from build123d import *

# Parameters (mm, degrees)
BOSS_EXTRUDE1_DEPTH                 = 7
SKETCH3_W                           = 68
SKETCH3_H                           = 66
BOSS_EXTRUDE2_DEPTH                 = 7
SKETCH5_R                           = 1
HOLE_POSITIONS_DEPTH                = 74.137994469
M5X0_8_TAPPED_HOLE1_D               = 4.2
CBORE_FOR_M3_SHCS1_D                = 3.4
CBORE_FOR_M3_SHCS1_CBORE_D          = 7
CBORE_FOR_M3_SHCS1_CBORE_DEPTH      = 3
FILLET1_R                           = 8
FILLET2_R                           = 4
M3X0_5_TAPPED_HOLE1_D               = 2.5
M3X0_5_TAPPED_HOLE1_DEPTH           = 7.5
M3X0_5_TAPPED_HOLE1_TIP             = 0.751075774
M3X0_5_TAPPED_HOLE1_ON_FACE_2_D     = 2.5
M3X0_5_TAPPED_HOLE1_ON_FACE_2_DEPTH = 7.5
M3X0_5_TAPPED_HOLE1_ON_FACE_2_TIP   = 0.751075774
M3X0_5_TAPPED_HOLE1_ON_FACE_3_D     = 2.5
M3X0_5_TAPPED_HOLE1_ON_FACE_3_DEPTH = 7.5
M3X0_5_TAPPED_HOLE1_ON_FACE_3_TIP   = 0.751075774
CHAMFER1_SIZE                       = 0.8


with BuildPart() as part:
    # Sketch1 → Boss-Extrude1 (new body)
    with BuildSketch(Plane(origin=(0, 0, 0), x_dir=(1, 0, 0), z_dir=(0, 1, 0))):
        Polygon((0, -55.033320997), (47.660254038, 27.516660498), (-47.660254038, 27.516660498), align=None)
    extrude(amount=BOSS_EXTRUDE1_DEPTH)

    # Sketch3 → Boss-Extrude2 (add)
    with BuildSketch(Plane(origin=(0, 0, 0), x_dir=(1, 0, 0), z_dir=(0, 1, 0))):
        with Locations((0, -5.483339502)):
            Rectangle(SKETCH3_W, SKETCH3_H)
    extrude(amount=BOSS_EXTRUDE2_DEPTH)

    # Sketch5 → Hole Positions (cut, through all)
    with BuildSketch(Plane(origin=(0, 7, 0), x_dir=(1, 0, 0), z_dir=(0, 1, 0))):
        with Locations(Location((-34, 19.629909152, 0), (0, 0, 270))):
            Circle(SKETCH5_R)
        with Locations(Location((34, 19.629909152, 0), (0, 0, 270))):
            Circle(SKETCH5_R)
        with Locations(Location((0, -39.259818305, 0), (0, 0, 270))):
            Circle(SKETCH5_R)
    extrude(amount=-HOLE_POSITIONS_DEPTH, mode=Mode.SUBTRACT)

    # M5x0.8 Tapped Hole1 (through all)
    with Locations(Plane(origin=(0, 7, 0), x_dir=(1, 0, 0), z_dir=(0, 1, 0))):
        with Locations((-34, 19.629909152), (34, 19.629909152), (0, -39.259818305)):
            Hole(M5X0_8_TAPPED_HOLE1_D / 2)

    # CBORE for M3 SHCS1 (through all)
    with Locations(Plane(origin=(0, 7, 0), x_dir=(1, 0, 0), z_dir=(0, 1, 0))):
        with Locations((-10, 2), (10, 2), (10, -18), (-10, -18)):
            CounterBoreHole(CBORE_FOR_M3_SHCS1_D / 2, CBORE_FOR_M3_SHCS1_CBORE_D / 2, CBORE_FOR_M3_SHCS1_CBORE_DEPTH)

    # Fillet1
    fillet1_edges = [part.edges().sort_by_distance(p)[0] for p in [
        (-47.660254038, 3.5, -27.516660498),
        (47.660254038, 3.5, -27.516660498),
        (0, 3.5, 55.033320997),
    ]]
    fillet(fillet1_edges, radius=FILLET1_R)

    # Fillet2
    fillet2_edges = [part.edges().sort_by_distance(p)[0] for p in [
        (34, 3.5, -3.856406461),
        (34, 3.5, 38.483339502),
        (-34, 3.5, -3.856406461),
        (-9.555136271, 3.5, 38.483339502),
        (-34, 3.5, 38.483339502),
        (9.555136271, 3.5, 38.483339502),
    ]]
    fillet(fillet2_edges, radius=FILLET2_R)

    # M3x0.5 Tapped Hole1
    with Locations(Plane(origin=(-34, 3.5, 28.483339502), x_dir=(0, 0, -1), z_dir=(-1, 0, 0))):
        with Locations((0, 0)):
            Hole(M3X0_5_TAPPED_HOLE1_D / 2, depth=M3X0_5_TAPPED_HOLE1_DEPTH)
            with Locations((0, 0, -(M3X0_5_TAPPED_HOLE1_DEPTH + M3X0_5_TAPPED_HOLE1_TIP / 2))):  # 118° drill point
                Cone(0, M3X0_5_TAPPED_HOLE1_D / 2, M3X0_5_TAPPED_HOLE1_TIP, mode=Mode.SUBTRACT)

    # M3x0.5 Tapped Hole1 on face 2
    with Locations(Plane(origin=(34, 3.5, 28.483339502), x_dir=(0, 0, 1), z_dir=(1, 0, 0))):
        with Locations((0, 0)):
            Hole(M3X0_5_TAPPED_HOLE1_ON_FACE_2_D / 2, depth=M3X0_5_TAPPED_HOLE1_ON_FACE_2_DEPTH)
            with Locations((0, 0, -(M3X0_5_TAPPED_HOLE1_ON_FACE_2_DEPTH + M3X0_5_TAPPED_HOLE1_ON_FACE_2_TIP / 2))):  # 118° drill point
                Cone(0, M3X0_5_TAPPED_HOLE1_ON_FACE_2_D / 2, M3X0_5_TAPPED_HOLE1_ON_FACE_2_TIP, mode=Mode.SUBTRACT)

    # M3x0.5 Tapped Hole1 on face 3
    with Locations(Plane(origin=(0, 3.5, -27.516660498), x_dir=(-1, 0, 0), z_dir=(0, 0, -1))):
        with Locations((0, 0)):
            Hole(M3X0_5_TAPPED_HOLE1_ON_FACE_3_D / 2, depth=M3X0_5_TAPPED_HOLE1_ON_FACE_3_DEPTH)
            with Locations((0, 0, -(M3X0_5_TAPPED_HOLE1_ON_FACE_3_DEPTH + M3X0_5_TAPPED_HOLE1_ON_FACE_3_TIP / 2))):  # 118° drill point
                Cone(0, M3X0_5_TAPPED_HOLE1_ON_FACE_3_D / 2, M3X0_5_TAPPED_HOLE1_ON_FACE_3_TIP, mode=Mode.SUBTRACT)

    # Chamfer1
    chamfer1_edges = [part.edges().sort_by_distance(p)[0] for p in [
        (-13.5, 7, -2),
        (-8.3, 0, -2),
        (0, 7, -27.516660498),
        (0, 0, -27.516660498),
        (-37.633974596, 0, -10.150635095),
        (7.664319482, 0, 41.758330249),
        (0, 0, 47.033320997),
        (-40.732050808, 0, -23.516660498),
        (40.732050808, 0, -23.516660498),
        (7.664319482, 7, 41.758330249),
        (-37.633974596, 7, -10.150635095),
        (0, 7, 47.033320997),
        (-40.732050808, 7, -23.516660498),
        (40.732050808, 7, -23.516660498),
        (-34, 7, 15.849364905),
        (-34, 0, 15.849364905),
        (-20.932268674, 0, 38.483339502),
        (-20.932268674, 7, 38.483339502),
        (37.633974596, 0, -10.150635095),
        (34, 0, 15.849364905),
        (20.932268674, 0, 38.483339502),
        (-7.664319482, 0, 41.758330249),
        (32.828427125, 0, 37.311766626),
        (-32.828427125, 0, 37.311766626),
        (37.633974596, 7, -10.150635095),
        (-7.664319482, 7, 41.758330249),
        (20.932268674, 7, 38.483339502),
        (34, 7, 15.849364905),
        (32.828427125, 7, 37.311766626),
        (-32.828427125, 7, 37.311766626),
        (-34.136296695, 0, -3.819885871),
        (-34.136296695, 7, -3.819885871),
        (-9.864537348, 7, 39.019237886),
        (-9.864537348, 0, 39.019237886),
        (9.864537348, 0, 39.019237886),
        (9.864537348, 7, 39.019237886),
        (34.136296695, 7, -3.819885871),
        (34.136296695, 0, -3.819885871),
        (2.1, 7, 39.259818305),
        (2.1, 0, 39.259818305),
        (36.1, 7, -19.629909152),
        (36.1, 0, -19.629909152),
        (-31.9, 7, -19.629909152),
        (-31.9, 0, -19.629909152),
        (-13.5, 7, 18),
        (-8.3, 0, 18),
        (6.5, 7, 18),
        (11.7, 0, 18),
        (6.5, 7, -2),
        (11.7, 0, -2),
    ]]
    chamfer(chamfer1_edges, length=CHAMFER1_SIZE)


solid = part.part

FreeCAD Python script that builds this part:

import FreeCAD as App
import Part
import Sketcher
from FreeCAD import Vector
Q = App.Units.Quantity


def edges_at(feature, points):
    """Names of the edges that pass closest to the given points."""
    edges = feature.Shape.Edges
    near = lambda p: min(range(len(edges)), key=lambda i: edges[i].distToShape(Part.Vertex(*p))[0])
    return sorted({f"Edge{near(p) + 1}" for p in points})


def add_polygon(sketch, points):
    """Adds a closed chain of lines whose ends are joined by coincident constraints."""
    first, n = sketch.GeometryCount, len(points)
    for a, b in zip(points, points[1:] + points[:1]):
        sketch.addGeometry(Part.LineSegment(App.Vector(*a, 0), App.Vector(*b, 0)), False)
    for i in range(n):
        sketch.addConstraint(Sketcher.Constraint("Coincident", first + i, 2, first + (i + 1) % n, 1))

doc = App.newDocument("Part")
body = doc.addObject("PartDesign::Body", "Body")

sketch1 = body.newObject("Sketcher::SketchObject", "Sketch")
sketch1.AttachmentSupport = (doc.getObject("XZ_Plane"), [""])
sketch1.MapMode = "FlatFace"
add_polygon(sketch1, [(0, 55), (48, -28), (-48, -28)])
sketch1.addConstraint(Sketcher.Constraint("Horizontal", 1))
sketch1.addConstraint(Sketcher.Constraint("PointOnObject", 2, 2, -2))
sketch1.addConstraint(Sketcher.Constraint("Equal", 0, 2))
sketch1.addConstraint(Sketcher.Constraint("Angle", 0, Q("-60 deg")))
sketch1.addConstraint(Sketcher.Constraint("DistanceX", 1, 2, 1, 1, Q("95.320508 mm")))
sketch1.addConstraint(Sketcher.Constraint("DistanceY", 0, 2, -1, 1, Q("27.51666 mm")))
pad1 = body.newObject("PartDesign::Pad", "Pad")
pad1.Profile = sketch1
pad1.Length = 7
pad1.Reversed = True

sketch2 = body.newObject("Sketcher::SketchObject", "Sketch001")
sketch2.AttachmentSupport = (doc.getObject("XZ_Plane"), [""])
sketch2.MapMode = "FlatFace"
add_polygon(sketch2, [(-34, -28), (-34, 38), (34, 38), (34, -28)])
sketch2.addConstraint(Sketcher.Constraint("Vertical", 0))
sketch2.addConstraint(Sketcher.Constraint("Horizontal", 1))
sketch2.addConstraint(Sketcher.Constraint("Vertical", 2))
sketch2.addConstraint(Sketcher.Constraint("Horizontal", 3))
sketch2.addConstraint(Sketcher.Constraint("DistanceX", 1, 1, 1, 2, Q("68 mm")))
sketch2.addConstraint(Sketcher.Constraint("DistanceY", 0, 1, 0, 2, Q("66 mm")))
sketch2.addConstraint(Sketcher.Constraint("DistanceX", 0, 2, -1, 1, Q("34 mm")))
sketch2.addConstraint(Sketcher.Constraint("DistanceY", -1, 1, 0, 2, Q("38.48334 mm")))
pad2 = body.newObject("PartDesign::Pad", "Pad001")
pad2.Profile = sketch2
pad2.Length = 7
pad2.Reversed = True

sketch3 = body.newObject("Sketcher::SketchObject", "Sketch002")
sketch3.AttachmentSupport = (doc.getObject("XZ_Plane"), [""])
sketch3.MapMode = "FlatFace"
sketch3.AttachmentOffset = App.Placement(Vector(0, 0, -7), App.Rotation())
sketch3.addGeometry(Part.Circle(Vector(-34, -19.6, 0), Vector(0, 0, 1), 1), False)
sketch3.addGeometry(Part.Circle(Vector(34, -19.6, 0), Vector(0, 0, 1), 1), False)
sketch3.addGeometry(Part.Circle(Vector(0, 39.3, 0), Vector(0, 0, 1), 1), False)
sketch3.addConstraint(Sketcher.Constraint("Equal", 0, 1))
sketch3.addConstraint(Sketcher.Constraint("Equal", 1, 2))
sketch3.addConstraint(Sketcher.Constraint("Symmetric", 0, 3, 1, 3, -2))
sketch3.addConstraint(Sketcher.Constraint("PointOnObject", 2, 3, -2))
sketch3.addConstraint(Sketcher.Constraint("Diameter", 0, Q("2 mm")))
sketch3.addConstraint(Sketcher.Constraint("DistanceX", 0, 3, -1, 1, Q("34 mm")))
sketch3.addConstraint(Sketcher.Constraint("DistanceY", 0, 3, -1, 1, Q("19.629909 mm")))
sketch3.addConstraint(Sketcher.Constraint("DistanceY", -1, 1, 2, 3, Q("39.259818 mm")))
pocket1 = body.newObject("PartDesign::Pocket", "Pocket")
pocket1.Profile = sketch3
pocket1.Type = "ThroughAll"
pocket1.Reversed = True

sketch4 = body.newObject("Sketcher::SketchObject", "Sketch003")
sketch4.AttachmentSupport = (doc.getObject("XZ_Plane"), [""])
sketch4.MapMode = "FlatFace"
sketch4.AttachmentOffset = App.Placement(Vector(0, 0, -7), App.Rotation())
sketch4.addGeometry(Part.Circle(Vector(-34, -19.6, 0), Vector(0, 0, 1), 2.1), False)
sketch4.addGeometry(Part.Circle(Vector(34, -19.6, 0), Vector(0, 0, 1), 2.1), False)
sketch4.addGeometry(Part.Circle(Vector(0, 39.3, 0), Vector(0, 0, 1), 2.1), False)
sketch4.addConstraint(Sketcher.Constraint("Equal", 0, 1))
sketch4.addConstraint(Sketcher.Constraint("Equal", 1, 2))
sketch4.addConstraint(Sketcher.Constraint("Symmetric", 0, 3, 1, 3, -2))
sketch4.addConstraint(Sketcher.Constraint("PointOnObject", 2, 3, -2))
sketch4.addConstraint(Sketcher.Constraint("Diameter", 0, Q("4.2 mm")))
sketch4.addConstraint(Sketcher.Constraint("DistanceX", 0, 3, -1, 1, Q("34 mm")))
sketch4.addConstraint(Sketcher.Constraint("DistanceY", 0, 3, -1, 1, Q("19.629909 mm")))
sketch4.addConstraint(Sketcher.Constraint("DistanceY", -1, 1, 2, 3, Q("39.259818 mm")))
doc.recompute()
hole = body.newObject("PartDesign::Hole", "Hole")
hole.Profile = sketch4
hole.ThreadType = "None"
hole.Diameter = 4.2
hole.DepthType = "ThroughAll"
hole.Reversed = True

sketch5 = body.newObject("Sketcher::SketchObject", "Sketch004")
sketch5.AttachmentSupport = (doc.getObject("XZ_Plane"), [""])
sketch5.MapMode = "FlatFace"
sketch5.AttachmentOffset = App.Placement(Vector(0, 0, -7), App.Rotation())
sketch5.addGeometry(Part.Circle(Vector(-10, -2, 0), Vector(0, 0, 1), 1.7), False)
sketch5.addGeometry(Part.Circle(Vector(10, -2, 0), Vector(0, 0, 1), 1.7), False)
sketch5.addGeometry(Part.Circle(Vector(10, 18, 0), Vector(0, 0, 1), 1.7), False)
sketch5.addGeometry(Part.Circle(Vector(-10, 18, 0), Vector(0, 0, 1), 1.7), False)
sketch5.addConstraint(Sketcher.Constraint("Equal", 0, 1))
sketch5.addConstraint(Sketcher.Constraint("Equal", 1, 2))
sketch5.addConstraint(Sketcher.Constraint("Equal", 2, 3))
sketch5.addConstraint(Sketcher.Constraint("Symmetric", 0, 3, 1, 3, -2))
sketch5.addConstraint(Sketcher.Constraint("Symmetric", 2, 3, 3, 3, -2))
sketch5.addConstraint(Sketcher.Constraint("Vertical", 1, 3, 2, 3))
sketch5.addConstraint(Sketcher.Constraint("Diameter", 0, Q("3.4 mm")))
sketch5.addConstraint(Sketcher.Constraint("DistanceX", 0, 3, -1, 1, Q("10 mm")))
sketch5.addConstraint(Sketcher.Constraint("DistanceY", 0, 3, -1, 1, Q("2 mm")))
sketch5.addConstraint(Sketcher.Constraint("DistanceY", -1, 1, 2, 3, Q("18 mm")))
doc.recompute()
hole2 = body.newObject("PartDesign::Hole", "Hole001")
hole2.Profile = sketch5
hole2.ThreadType = "None"
hole2.Diameter = 3.4
hole2.DepthType = "ThroughAll"
hole2.HoleCutType = "Counterbore"
hole2.HoleCutDiameter = 7
hole2.HoleCutDepth = 3
hole2.Reversed = True
doc.recompute()

fillet = body.newObject("PartDesign::Fillet", "Fillet")
fillet.Base = (hole2, edges_at(hole2, [(-47.66, 3.5, -27.517), (47.66, 3.5, -27.517), (0, 3.5, 55.033)]))
fillet.Radius = 8
doc.recompute()

fillet2 = body.newObject("PartDesign::Fillet", "Fillet001")
fillet2.Base = (fillet, edges_at(fillet, [
    (34, 3.5, -3.856),
    (34, 3.5, 38.483),
    (-34, 3.5, -3.856),
    (-9.555, 3.5, 38.483),
    (-34, 3.5, 38.483),
    (9.555, 3.5, 38.483),
]))
fillet2.Radius = 4

sketch6 = body.newObject("Sketcher::SketchObject", "Sketch005")
sketch6.AttachmentSupport = (doc.getObject("YZ_Plane"), [""])
sketch6.MapMode = "FlatFace"
sketch6.AttachmentOffset = App.Placement(Vector(0, 0, -34), App.Rotation())
sketch6.addGeometry(Part.Circle(Vector(3.5, 28.5, 0), Vector(0, 0, 1), 1.2), False)
sketch6.addConstraint(Sketcher.Constraint("Diameter", 0, Q("2.5 mm")))
sketch6.addConstraint(Sketcher.Constraint("DistanceX", -1, 1, 0, 3, Q("3.5 mm")))
sketch6.addConstraint(Sketcher.Constraint("DistanceY", -1, 1, 0, 3, Q("28.48334 mm")))
doc.recompute()
hole3 = body.newObject("PartDesign::Hole", "Hole002")
hole3.Profile = sketch6
hole3.ThreadType = "None"
hole3.Diameter = 2.5
hole3.DepthType = "Dimension"
hole3.Depth = 7.5
hole3.DrillPoint = "Angled"
hole3.DrillPointAngle = 118
hole3.Reversed = True

sketch7 = body.newObject("Sketcher::SketchObject", "Sketch006")
sketch7.AttachmentSupport = (doc.getObject("YZ_Plane"), [""])
sketch7.MapMode = "FlatFace"
sketch7.AttachmentOffset = App.Placement(Vector(0, 0, 34), App.Rotation())
sketch7.addGeometry(Part.Circle(Vector(3.5, 28.5, 0), Vector(0, 0, 1), 1.2), False)
sketch7.addConstraint(Sketcher.Constraint("Diameter", 0, Q("2.5 mm")))
sketch7.addConstraint(Sketcher.Constraint("DistanceX", -1, 1, 0, 3, Q("3.5 mm")))
sketch7.addConstraint(Sketcher.Constraint("DistanceY", -1, 1, 0, 3, Q("28.48334 mm")))
doc.recompute()
hole4 = body.newObject("PartDesign::Hole", "Hole003")
hole4.Profile = sketch7
hole4.ThreadType = "None"
hole4.Diameter = 2.5
hole4.DepthType = "Dimension"
hole4.Depth = 7.5
hole4.DrillPoint = "Angled"
hole4.DrillPointAngle = 118

sketch8 = body.newObject("Sketcher::SketchObject", "Sketch007")
sketch8.AttachmentSupport = (doc.getObject("XY_Plane"), [""])
sketch8.MapMode = "FlatFace"
sketch8.AttachmentOffset = App.Placement(Vector(0, 0, -27.51666), App.Rotation())
sketch8.addGeometry(Part.Circle(Vector(0, 3.5, 0), Vector(0, 0, 1), 1.2), False)
sketch8.addConstraint(Sketcher.Constraint("PointOnObject", 0, 3, -2))
sketch8.addConstraint(Sketcher.Constraint("Diameter", 0, Q("2.5 mm")))
sketch8.addConstraint(Sketcher.Constraint("DistanceY", -1, 1, 0, 3, Q("3.5 mm")))
doc.recompute()
hole5 = body.newObject("PartDesign::Hole", "Hole004")
hole5.Profile = sketch8
hole5.ThreadType = "None"
hole5.Diameter = 2.5
hole5.DepthType = "Dimension"
hole5.Depth = 7.5
hole5.DrillPoint = "Angled"
hole5.DrillPointAngle = 118
hole5.Reversed = True
doc.recompute()

chamfer = body.newObject("PartDesign::Chamfer", "Chamfer")
chamfer.Base = (hole5, edges_at(hole5, [
    (-13.5, 7, -2),
    (-8.3, 0, -2),
    (0, 7, -27.517),
    (0, 0, -27.517),
    (-37.634, 0, -10.151),
    (7.664, 0, 41.758),
    (0, 0, 47.033),
    (-40.732, 0, -23.517),
    (40.732, 0, -23.517),
    (7.664, 7, 41.758),
    (-37.634, 7, -10.151),
    (0, 7, 47.033),
    (-40.732, 7, -23.517),
    (40.732, 7, -23.517),
    (-34, 7, 15.849),
    (-34, 0, 15.849),
    (-20.932, 0, 38.483),
    (-20.932, 7, 38.483),
    (37.634, 0, -10.151),
    (34, 0, 15.849),
    (20.932, 0, 38.483),
    (-7.664, 0, 41.758),
    (32.828, 0, 37.312),
    (-32.828, 0, 37.312),
    (37.634, 7, -10.151),
    (-7.664, 7, 41.758),
    (20.932, 7, 38.483),
    (34, 7, 15.849),
    (32.828, 7, 37.312),
    (-32.828, 7, 37.312),
    (-34.136, 0, -3.82),
    (-34.136, 7, -3.82),
    (-9.865, 7, 39.019),
    (-9.865, 0, 39.019),
    (9.865, 0, 39.019),
    (9.865, 7, 39.019),
    (34.136, 7, -3.82),
    (34.136, 0, -3.82),
    (2.1, 7, 39.26),
    (2.1, 0, 39.26),
    (36.1, 7, -19.63),
    (36.1, 0, -19.63),
    (-31.9, 7, -19.63),
    (-31.9, 0, -19.63),
    (-13.5, 7, 18),
    (-8.3, 0, 18),
    (6.5, 7, 18),
    (11.7, 0, 18),
    (6.5, 7, -2),
    (11.7, 0, -2),
]))
chamfer.Size = 0.8

doc.recompute()
